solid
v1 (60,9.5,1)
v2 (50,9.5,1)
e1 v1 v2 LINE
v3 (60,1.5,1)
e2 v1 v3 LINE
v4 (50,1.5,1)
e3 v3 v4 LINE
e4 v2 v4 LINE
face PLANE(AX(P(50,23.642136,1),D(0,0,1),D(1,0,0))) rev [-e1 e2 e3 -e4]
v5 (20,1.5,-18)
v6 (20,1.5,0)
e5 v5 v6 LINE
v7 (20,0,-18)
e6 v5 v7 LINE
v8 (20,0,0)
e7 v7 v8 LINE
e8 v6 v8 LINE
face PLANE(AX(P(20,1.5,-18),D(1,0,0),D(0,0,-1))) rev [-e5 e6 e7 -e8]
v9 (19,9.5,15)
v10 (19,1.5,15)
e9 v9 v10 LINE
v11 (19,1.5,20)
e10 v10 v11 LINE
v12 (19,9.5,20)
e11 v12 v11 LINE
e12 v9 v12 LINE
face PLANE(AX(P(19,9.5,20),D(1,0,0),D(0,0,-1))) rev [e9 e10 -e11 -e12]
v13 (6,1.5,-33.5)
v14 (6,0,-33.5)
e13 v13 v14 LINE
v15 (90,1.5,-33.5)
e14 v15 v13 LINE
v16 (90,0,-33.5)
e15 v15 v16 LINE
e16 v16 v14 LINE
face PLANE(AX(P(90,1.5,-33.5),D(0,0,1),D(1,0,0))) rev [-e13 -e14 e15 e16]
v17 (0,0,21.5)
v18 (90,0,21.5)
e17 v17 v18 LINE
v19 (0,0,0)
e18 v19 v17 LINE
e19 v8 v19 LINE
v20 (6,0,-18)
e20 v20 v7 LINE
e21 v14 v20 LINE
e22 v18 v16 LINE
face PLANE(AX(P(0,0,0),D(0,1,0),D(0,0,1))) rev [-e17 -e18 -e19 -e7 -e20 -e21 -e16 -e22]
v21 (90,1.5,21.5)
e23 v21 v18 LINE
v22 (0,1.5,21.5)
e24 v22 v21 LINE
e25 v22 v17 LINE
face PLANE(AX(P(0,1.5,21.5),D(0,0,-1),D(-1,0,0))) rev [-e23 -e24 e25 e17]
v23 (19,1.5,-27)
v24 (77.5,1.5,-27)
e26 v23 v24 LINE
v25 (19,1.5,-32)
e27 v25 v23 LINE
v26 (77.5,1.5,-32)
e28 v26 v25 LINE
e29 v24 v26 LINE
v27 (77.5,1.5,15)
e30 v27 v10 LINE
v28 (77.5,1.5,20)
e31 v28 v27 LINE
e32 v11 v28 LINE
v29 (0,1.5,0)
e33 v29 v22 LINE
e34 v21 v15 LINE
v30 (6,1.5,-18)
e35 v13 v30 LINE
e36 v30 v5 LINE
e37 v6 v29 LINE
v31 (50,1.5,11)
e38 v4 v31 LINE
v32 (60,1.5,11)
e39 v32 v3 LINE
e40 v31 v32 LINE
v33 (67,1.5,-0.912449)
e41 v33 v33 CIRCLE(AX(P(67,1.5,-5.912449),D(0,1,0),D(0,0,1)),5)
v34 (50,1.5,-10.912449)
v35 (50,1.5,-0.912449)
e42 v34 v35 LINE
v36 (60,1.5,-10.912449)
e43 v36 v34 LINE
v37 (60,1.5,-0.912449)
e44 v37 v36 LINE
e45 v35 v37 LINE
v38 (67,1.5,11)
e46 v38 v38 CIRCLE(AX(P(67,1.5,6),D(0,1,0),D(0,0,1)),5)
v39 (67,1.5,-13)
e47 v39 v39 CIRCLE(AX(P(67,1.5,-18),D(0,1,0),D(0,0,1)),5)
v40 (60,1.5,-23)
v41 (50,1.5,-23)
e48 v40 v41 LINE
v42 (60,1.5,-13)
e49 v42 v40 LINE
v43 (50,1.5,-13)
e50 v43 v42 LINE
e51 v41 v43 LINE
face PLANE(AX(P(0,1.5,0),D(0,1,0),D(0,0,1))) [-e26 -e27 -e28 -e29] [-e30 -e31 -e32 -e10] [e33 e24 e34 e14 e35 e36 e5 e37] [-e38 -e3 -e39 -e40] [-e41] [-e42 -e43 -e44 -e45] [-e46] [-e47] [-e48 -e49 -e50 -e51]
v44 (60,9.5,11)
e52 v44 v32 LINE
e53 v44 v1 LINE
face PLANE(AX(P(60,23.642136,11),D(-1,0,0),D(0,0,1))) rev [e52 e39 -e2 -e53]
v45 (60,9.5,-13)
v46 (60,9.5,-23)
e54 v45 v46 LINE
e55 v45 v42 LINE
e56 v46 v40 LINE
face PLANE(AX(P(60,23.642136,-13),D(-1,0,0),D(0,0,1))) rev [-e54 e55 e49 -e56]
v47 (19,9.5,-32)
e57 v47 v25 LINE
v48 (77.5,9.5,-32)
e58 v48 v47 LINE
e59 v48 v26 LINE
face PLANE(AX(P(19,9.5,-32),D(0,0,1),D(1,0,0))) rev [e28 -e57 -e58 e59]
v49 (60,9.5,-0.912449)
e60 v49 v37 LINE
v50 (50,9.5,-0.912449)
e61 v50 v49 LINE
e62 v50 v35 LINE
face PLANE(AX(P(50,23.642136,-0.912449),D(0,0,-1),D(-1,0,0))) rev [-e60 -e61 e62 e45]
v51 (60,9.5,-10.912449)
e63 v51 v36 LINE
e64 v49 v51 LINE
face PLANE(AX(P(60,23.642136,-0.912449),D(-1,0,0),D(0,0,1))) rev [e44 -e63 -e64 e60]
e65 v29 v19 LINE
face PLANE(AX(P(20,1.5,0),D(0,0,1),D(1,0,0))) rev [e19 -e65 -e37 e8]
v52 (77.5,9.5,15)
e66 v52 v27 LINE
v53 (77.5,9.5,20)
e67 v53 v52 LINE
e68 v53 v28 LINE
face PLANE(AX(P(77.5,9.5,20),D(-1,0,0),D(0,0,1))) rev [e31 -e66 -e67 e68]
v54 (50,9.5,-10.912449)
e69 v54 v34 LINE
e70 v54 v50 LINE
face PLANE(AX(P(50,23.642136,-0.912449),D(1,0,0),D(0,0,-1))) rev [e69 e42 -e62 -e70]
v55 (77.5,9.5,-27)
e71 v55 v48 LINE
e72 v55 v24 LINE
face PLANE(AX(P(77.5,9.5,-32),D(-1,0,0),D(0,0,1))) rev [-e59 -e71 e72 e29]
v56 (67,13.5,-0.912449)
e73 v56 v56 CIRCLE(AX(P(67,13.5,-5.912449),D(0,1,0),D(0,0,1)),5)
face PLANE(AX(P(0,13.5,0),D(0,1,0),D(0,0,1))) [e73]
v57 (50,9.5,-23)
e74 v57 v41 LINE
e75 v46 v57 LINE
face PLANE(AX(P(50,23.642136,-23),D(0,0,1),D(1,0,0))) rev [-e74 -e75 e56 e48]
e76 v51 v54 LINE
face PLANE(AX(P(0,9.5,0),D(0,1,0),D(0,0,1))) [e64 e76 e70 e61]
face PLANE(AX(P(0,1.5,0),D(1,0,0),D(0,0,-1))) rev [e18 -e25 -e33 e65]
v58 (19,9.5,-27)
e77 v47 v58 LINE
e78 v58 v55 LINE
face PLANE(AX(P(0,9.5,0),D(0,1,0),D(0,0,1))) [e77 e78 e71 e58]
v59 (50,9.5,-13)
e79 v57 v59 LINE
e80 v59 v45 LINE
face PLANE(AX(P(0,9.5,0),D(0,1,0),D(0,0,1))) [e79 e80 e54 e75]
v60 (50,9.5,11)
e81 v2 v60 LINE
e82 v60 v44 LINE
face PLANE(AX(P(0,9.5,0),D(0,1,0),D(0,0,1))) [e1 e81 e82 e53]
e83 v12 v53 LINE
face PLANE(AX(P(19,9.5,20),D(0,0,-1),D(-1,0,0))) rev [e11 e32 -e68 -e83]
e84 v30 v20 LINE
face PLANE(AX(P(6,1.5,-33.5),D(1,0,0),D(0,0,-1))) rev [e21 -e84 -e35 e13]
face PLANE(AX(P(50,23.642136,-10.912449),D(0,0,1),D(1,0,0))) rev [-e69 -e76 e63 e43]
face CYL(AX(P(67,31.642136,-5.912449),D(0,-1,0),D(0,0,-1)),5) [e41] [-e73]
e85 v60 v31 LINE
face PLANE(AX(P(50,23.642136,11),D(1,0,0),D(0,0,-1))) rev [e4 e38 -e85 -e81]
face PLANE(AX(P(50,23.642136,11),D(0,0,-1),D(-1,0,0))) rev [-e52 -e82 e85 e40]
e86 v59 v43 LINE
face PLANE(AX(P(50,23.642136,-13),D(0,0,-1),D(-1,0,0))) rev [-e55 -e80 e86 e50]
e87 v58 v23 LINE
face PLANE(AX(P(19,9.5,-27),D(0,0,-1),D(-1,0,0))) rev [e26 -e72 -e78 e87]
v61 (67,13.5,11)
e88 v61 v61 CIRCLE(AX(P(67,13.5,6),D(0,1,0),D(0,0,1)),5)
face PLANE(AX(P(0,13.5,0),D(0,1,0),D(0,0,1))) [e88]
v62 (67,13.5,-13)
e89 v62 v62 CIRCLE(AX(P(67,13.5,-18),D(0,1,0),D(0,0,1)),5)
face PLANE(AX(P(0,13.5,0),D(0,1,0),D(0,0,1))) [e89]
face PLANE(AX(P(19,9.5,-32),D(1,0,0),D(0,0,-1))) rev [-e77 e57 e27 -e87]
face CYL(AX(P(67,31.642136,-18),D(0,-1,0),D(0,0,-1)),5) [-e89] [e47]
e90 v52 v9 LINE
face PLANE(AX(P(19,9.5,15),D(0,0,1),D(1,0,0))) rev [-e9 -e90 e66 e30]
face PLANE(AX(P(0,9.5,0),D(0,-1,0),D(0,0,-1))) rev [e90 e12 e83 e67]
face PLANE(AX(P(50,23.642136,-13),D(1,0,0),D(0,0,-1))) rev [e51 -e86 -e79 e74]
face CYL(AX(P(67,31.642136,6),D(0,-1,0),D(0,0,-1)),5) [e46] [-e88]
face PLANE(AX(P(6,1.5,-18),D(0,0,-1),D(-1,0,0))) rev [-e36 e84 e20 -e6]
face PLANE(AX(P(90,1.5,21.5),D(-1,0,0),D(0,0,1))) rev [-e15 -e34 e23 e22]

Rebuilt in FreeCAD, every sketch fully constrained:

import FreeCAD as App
import Part
import Sketcher

V = App.Vector

doc = App.newDocument("Part")
body = doc.addObject("PartDesign::Body", "Body")

# Sketch on XZ plane
sketch1 = body.newObject("Sketcher::SketchObject", "Sketch")
sketch1.AttachmentSupport = (doc.getObject("XZ_Plane"), [""])
sketch1.MapMode = "FlatFace"
sketch1.addGeometry([
    Part.LineSegment(V(0, 0, 0), V(0, 21.5, 0)),  # 0
    Part.LineSegment(V(0, 21.5, 0), V(90, 21.5, 0)),  # 1
    Part.LineSegment(V(90, 21.5, 0), V(90, -33.5, 0)),  # 2
    Part.LineSegment(V(90, -33.5, 0), V(6, -33.5, 0)),  # 3
    Part.LineSegment(V(6, -33.5, 0), V(6, -18, 0)),  # 4
    Part.LineSegment(V(6, -18, 0), V(20, -18, 0)),  # 5
    Part.LineSegment(V(20, -18, 0), V(20, 0, 0)),  # 6
    Part.LineSegment(V(20, 0, 0), V(0, 0, 0)),  # 7
], False)
sketch1.addConstraint([
    Sketcher.Constraint("Coincident", 0, 2, 1, 1),
    Sketcher.Constraint("Coincident", 1, 2, 2, 1),
    Sketcher.Constraint("Coincident", 2, 2, 3, 1),
    Sketcher.Constraint("Coincident", 3, 2, 4, 1),
    Sketcher.Constraint("Coincident", 4, 2, 5, 1),
    Sketcher.Constraint("Coincident", 5, 2, 6, 1),
    Sketcher.Constraint("Coincident", 6, 2, 7, 1),
    Sketcher.Constraint("Coincident", 7, 2, 0, 1),
    Sketcher.Constraint("Vertical", 0),
    Sketcher.Constraint("Horizontal", 1),
    Sketcher.Constraint("Vertical", 2),
    Sketcher.Constraint("Horizontal", 3),
    Sketcher.Constraint("Vertical", 4),
    Sketcher.Constraint("Horizontal", 5),
    Sketcher.Constraint("Vertical", 6),
    Sketcher.Constraint("Horizontal", 7),
    Sketcher.Constraint("Coincident", 7, 2, -1, 1),
    Sketcher.Constraint("DistanceX", 1, 1, 1, 2, 90.0),
    Sketcher.Constraint("DistanceX", 3, 2, 3, 1, 84.0),
    Sketcher.Constraint("DistanceX", 5, 1, 5, 2, 14.0),
    Sketcher.Constraint("DistanceY", 2, 2, 2, 1, 55.0),
    Sketcher.Constraint("DistanceY", 6, 1, 6, 2, 18.0),
    Sketcher.Constraint("DistanceY", 0, 1, 0, 2, 21.5),
])
pad1 = body.newObject("PartDesign::Pad", "Pad")
pad1.Profile = sketch1
pad1.Length = 1.5
pad1.Reversed = True

# Sketch on XZ plane
sketch2 = body.newObject("Sketcher::SketchObject", "Sketch001")
sketch2.AttachmentSupport = (doc.getObject("XZ_Plane"), [""])
sketch2.MapMode = "FlatFace"
sketch2.AttachmentOffset = App.Placement(V(0, 0, -1.5), App.Rotation())
sketch2.addGeometry([
    Part.LineSegment(V(19, 15, 0), V(19, 20, 0)),  # 0
    Part.LineSegment(V(19, 20, 0), V(77.5, 20, 0)),  # 1
    Part.LineSegment(V(77.5, 20, 0), V(77.5, 15, 0)),  # 2
    Part.LineSegment(V(77.5, 15, 0), V(19, 15, 0)),  # 3
    Part.LineSegment(V(19, -32, 0), V(19, -27, 0)),  # 4
    Part.LineSegment(V(19, -27, 0), V(77.5, -27, 0)),  # 5
    Part.LineSegment(V(77.5, -27, 0), V(77.5, -32, 0)),  # 6
    Part.LineSegment(V(77.5, -32, 0), V(19, -32, 0)),  # 7
], False)
sketch2.addConstraint([
    Sketcher.Constraint("Coincident", 0, 2, 1, 1),
    Sketcher.Constraint("Coincident", 1, 2, 2, 1),
    Sketcher.Constraint("Coincident", 2, 2, 3, 1),
    Sketcher.Constraint("Coincident", 3, 2, 0, 1),
    Sketcher.Constraint("Coincident", 4, 2, 5, 1),
    Sketcher.Constraint("Coincident", 5, 2, 6, 1),
    Sketcher.Constraint("Coincident", 6, 2, 7, 1),
    Sketcher.Constraint("Coincident", 7, 2, 4, 1),
    Sketcher.Constraint("Vertical", 0),
    Sketcher.Constraint("Horizontal", 1),
    Sketcher.Constraint("Vertical", 2),
    Sketcher.Constraint("Horizontal", 3),
    Sketcher.Constraint("Vertical", 4),
    Sketcher.Constraint("Horizontal", 5),
    Sketcher.Constraint("Vertical", 6),
    Sketcher.Constraint("Horizontal", 7),
    Sketcher.Constraint("Vertical", 3, 2, 4, 2),
    Sketcher.Constraint("Vertical", 2, 2, 5, 2),
    Sketcher.Constraint("Equal", 2, 4),
    Sketcher.Constraint("DistanceY", 0, 1, 0, 2, 5.0),
    Sketcher.Constraint("DistanceX", 1, 1, 1, 2, 58.5),
    Sketcher.Constraint("DistanceX", -1, 1, 0, 2, 19.0),
    Sketcher.Constraint("DistanceY", -1, 1, 0, 2, 20.0),
    Sketcher.Constraint("DistanceY", 4, 2, -1, 1, 27.0),
])
pad2 = body.newObject("PartDesign::Pad", "Pad001")
pad2.Profile = sketch2
pad2.Length = 8
pad2.Reversed = True

# Sketch on XZ plane
sketch3 = body.newObject("Sketcher::SketchObject", "Sketch002")
sketch3.AttachmentSupport = (doc.getObject("XZ_Plane"), [""])
sketch3.MapMode = "FlatFace"
sketch3.AttachmentOffset = App.Placement(V(0, 0, -1.5), App.Rotation())
sketch3.addGeometry([
    Part.LineSegment(V(50, -23, 0), V(50, -13, 0)),  # 0
    Part.LineSegment(V(50, -13, 0), V(60, -13, 0)),  # 1
    Part.LineSegment(V(60, -13, 0), V(60, -23, 0)),  # 2
    Part.LineSegment(V(60, -23, 0), V(50, -23, 0)),  # 3
    Part.LineSegment(V(50, -10.912449, 0), V(50, -0.912449, 0)),  # 4
    Part.LineSegment(V(50, -0.912449, 0), V(60, -0.912449, 0)),  # 5
    Part.LineSegment(V(60, -0.912449, 0), V(60, -10.912449, 0)),  # 6
    Part.LineSegment(V(60, -10.912449, 0), V(50, -10.912449, 0)),  # 7
    Part.LineSegment(V(50, 1, 0), V(50, 11, 0)),  # 8
    Part.LineSegment(V(50, 11, 0), V(60, 11, 0)),  # 9
    Part.LineSegment(V(60, 11, 0), V(60, 1, 0)),  # 10
    Part.LineSegment(V(60, 1, 0), V(50, 1, 0)),  # 11
], False)
sketch3.addConstraint([
    Sketcher.Constraint("Coincident", 0, 2, 1, 1),
    Sketcher.Constraint("Coincident", 1, 2, 2, 1),
    Sketcher.Constraint("Coincident", 2, 2, 3, 1),
    Sketcher.Constraint("Coincident", 3, 2, 0, 1),
    Sketcher.Constraint("Coincident", 4, 2, 5, 1),
    Sketcher.Constraint("Coincident", 5, 2, 6, 1),
    Sketcher.Constraint("Coincident", 6, 2, 7, 1),
    Sketcher.Constraint("Coincident", 7, 2, 4, 1),
    Sketcher.Constraint("Coincident", 8, 2, 9, 1),
    Sketcher.Constraint("Coincident", 9, 2, 10, 1),
    Sketcher.Constraint("Coincident", 10, 2, 11, 1),
    Sketcher.Constraint("Coincident", 11, 2, 8, 1),
    Sketcher.Constraint("Vertical", 0),
    Sketcher.Constraint("Horizontal", 1),
    Sketcher.Constraint("Vertical", 2),
    Sketcher.Constraint("Horizontal", 3),
    Sketcher.Constraint("Vertical", 4),
    Sketcher.Constraint("Horizontal", 5),
    Sketcher.Constraint("Vertical", 6),
    Sketcher.Constraint("Horizontal", 7),
    Sketcher.Constraint("Vertical", 8),
    Sketcher.Constraint("Horizontal", 9),
    Sketcher.Constraint("Vertical", 10),
    Sketcher.Constraint("Horizontal", 11),
    Sketcher.Constraint("Vertical", 3, 2, 4, 2),
    Sketcher.Constraint("Vertical", 2, 2, 5, 2),
    Sketcher.Constraint("Vertical", 7, 2, 8, 2),
    Sketcher.Constraint("Vertical", 6, 2, 9, 2),
    Sketcher.Constraint("Equal", 11, 0),
    Sketcher.Constraint("Equal", 2, 4),
    Sketcher.Constraint("Equal", 6, 8),
    Sketcher.Constraint("DistanceX", 1, 1, 1, 2, 10.0),
    Sketcher.Constraint("DistanceX", -1, 1, 0, 2, 50.0),
    Sketcher.Constraint("DistanceY", 0, 2, -1, 1, 13.0),
    Sketcher.Constraint("DistanceY", -1, 1, 8, 2, 11.0),
    Sketcher.Constraint("DistanceY", 4, 2, -1, 1, 0.912449),
])
pad3 = body.newObject("PartDesign::Pad", "Pad002")
pad3.Profile = sketch3
pad3.Length = 8
pad3.Reversed = True

# Sketch on XZ plane
sketch4 = body.newObject("Sketcher::SketchObject", "Sketch003")
sketch4.AttachmentSupport = (doc.getObject("XZ_Plane"), [""])
sketch4.MapMode = "FlatFace"
sketch4.AttachmentOffset = App.Placement(V(0, 0, -1.5), App.Rotation())
sketch4.addGeometry([
    Part.Circle(V(67, -18, 0), V(0, 0, 1), 5),
    Part.Circle(V(67, -5.912449, 0), V(0, 0, 1), 5),
    Part.Circle(V(67, 6, 0), V(0, 0, 1), 5),
], False)
sketch4.addConstraint([
    Sketcher.Constraint("Equal", 0, 1),
    Sketcher.Constraint("Equal", 1, 2),
    Sketcher.Constraint("Vertical", 0, 3, 1, 3),
    Sketcher.Constraint("Vertical", 1, 3, 2, 3),
    Sketcher.Constraint("Diameter", 0, 10.0),
    Sketcher.Constraint("DistanceX", -1, 1, 0, 3, 67.0),
    Sketcher.Constraint("DistanceY", 0, 3, -1, 1, 18.0),
    Sketcher.Constraint("DistanceY", -1, 1, 2, 3, 6.0),
    Sketcher.Constraint("DistanceY", 1, 3, -1, 1, 5.912449),
])
pad4 = body.newObject("PartDesign::Pad", "Pad003")
pad4.Profile = sketch4
pad4.Length = 12
pad4.Reversed = True

doc.recompute()
